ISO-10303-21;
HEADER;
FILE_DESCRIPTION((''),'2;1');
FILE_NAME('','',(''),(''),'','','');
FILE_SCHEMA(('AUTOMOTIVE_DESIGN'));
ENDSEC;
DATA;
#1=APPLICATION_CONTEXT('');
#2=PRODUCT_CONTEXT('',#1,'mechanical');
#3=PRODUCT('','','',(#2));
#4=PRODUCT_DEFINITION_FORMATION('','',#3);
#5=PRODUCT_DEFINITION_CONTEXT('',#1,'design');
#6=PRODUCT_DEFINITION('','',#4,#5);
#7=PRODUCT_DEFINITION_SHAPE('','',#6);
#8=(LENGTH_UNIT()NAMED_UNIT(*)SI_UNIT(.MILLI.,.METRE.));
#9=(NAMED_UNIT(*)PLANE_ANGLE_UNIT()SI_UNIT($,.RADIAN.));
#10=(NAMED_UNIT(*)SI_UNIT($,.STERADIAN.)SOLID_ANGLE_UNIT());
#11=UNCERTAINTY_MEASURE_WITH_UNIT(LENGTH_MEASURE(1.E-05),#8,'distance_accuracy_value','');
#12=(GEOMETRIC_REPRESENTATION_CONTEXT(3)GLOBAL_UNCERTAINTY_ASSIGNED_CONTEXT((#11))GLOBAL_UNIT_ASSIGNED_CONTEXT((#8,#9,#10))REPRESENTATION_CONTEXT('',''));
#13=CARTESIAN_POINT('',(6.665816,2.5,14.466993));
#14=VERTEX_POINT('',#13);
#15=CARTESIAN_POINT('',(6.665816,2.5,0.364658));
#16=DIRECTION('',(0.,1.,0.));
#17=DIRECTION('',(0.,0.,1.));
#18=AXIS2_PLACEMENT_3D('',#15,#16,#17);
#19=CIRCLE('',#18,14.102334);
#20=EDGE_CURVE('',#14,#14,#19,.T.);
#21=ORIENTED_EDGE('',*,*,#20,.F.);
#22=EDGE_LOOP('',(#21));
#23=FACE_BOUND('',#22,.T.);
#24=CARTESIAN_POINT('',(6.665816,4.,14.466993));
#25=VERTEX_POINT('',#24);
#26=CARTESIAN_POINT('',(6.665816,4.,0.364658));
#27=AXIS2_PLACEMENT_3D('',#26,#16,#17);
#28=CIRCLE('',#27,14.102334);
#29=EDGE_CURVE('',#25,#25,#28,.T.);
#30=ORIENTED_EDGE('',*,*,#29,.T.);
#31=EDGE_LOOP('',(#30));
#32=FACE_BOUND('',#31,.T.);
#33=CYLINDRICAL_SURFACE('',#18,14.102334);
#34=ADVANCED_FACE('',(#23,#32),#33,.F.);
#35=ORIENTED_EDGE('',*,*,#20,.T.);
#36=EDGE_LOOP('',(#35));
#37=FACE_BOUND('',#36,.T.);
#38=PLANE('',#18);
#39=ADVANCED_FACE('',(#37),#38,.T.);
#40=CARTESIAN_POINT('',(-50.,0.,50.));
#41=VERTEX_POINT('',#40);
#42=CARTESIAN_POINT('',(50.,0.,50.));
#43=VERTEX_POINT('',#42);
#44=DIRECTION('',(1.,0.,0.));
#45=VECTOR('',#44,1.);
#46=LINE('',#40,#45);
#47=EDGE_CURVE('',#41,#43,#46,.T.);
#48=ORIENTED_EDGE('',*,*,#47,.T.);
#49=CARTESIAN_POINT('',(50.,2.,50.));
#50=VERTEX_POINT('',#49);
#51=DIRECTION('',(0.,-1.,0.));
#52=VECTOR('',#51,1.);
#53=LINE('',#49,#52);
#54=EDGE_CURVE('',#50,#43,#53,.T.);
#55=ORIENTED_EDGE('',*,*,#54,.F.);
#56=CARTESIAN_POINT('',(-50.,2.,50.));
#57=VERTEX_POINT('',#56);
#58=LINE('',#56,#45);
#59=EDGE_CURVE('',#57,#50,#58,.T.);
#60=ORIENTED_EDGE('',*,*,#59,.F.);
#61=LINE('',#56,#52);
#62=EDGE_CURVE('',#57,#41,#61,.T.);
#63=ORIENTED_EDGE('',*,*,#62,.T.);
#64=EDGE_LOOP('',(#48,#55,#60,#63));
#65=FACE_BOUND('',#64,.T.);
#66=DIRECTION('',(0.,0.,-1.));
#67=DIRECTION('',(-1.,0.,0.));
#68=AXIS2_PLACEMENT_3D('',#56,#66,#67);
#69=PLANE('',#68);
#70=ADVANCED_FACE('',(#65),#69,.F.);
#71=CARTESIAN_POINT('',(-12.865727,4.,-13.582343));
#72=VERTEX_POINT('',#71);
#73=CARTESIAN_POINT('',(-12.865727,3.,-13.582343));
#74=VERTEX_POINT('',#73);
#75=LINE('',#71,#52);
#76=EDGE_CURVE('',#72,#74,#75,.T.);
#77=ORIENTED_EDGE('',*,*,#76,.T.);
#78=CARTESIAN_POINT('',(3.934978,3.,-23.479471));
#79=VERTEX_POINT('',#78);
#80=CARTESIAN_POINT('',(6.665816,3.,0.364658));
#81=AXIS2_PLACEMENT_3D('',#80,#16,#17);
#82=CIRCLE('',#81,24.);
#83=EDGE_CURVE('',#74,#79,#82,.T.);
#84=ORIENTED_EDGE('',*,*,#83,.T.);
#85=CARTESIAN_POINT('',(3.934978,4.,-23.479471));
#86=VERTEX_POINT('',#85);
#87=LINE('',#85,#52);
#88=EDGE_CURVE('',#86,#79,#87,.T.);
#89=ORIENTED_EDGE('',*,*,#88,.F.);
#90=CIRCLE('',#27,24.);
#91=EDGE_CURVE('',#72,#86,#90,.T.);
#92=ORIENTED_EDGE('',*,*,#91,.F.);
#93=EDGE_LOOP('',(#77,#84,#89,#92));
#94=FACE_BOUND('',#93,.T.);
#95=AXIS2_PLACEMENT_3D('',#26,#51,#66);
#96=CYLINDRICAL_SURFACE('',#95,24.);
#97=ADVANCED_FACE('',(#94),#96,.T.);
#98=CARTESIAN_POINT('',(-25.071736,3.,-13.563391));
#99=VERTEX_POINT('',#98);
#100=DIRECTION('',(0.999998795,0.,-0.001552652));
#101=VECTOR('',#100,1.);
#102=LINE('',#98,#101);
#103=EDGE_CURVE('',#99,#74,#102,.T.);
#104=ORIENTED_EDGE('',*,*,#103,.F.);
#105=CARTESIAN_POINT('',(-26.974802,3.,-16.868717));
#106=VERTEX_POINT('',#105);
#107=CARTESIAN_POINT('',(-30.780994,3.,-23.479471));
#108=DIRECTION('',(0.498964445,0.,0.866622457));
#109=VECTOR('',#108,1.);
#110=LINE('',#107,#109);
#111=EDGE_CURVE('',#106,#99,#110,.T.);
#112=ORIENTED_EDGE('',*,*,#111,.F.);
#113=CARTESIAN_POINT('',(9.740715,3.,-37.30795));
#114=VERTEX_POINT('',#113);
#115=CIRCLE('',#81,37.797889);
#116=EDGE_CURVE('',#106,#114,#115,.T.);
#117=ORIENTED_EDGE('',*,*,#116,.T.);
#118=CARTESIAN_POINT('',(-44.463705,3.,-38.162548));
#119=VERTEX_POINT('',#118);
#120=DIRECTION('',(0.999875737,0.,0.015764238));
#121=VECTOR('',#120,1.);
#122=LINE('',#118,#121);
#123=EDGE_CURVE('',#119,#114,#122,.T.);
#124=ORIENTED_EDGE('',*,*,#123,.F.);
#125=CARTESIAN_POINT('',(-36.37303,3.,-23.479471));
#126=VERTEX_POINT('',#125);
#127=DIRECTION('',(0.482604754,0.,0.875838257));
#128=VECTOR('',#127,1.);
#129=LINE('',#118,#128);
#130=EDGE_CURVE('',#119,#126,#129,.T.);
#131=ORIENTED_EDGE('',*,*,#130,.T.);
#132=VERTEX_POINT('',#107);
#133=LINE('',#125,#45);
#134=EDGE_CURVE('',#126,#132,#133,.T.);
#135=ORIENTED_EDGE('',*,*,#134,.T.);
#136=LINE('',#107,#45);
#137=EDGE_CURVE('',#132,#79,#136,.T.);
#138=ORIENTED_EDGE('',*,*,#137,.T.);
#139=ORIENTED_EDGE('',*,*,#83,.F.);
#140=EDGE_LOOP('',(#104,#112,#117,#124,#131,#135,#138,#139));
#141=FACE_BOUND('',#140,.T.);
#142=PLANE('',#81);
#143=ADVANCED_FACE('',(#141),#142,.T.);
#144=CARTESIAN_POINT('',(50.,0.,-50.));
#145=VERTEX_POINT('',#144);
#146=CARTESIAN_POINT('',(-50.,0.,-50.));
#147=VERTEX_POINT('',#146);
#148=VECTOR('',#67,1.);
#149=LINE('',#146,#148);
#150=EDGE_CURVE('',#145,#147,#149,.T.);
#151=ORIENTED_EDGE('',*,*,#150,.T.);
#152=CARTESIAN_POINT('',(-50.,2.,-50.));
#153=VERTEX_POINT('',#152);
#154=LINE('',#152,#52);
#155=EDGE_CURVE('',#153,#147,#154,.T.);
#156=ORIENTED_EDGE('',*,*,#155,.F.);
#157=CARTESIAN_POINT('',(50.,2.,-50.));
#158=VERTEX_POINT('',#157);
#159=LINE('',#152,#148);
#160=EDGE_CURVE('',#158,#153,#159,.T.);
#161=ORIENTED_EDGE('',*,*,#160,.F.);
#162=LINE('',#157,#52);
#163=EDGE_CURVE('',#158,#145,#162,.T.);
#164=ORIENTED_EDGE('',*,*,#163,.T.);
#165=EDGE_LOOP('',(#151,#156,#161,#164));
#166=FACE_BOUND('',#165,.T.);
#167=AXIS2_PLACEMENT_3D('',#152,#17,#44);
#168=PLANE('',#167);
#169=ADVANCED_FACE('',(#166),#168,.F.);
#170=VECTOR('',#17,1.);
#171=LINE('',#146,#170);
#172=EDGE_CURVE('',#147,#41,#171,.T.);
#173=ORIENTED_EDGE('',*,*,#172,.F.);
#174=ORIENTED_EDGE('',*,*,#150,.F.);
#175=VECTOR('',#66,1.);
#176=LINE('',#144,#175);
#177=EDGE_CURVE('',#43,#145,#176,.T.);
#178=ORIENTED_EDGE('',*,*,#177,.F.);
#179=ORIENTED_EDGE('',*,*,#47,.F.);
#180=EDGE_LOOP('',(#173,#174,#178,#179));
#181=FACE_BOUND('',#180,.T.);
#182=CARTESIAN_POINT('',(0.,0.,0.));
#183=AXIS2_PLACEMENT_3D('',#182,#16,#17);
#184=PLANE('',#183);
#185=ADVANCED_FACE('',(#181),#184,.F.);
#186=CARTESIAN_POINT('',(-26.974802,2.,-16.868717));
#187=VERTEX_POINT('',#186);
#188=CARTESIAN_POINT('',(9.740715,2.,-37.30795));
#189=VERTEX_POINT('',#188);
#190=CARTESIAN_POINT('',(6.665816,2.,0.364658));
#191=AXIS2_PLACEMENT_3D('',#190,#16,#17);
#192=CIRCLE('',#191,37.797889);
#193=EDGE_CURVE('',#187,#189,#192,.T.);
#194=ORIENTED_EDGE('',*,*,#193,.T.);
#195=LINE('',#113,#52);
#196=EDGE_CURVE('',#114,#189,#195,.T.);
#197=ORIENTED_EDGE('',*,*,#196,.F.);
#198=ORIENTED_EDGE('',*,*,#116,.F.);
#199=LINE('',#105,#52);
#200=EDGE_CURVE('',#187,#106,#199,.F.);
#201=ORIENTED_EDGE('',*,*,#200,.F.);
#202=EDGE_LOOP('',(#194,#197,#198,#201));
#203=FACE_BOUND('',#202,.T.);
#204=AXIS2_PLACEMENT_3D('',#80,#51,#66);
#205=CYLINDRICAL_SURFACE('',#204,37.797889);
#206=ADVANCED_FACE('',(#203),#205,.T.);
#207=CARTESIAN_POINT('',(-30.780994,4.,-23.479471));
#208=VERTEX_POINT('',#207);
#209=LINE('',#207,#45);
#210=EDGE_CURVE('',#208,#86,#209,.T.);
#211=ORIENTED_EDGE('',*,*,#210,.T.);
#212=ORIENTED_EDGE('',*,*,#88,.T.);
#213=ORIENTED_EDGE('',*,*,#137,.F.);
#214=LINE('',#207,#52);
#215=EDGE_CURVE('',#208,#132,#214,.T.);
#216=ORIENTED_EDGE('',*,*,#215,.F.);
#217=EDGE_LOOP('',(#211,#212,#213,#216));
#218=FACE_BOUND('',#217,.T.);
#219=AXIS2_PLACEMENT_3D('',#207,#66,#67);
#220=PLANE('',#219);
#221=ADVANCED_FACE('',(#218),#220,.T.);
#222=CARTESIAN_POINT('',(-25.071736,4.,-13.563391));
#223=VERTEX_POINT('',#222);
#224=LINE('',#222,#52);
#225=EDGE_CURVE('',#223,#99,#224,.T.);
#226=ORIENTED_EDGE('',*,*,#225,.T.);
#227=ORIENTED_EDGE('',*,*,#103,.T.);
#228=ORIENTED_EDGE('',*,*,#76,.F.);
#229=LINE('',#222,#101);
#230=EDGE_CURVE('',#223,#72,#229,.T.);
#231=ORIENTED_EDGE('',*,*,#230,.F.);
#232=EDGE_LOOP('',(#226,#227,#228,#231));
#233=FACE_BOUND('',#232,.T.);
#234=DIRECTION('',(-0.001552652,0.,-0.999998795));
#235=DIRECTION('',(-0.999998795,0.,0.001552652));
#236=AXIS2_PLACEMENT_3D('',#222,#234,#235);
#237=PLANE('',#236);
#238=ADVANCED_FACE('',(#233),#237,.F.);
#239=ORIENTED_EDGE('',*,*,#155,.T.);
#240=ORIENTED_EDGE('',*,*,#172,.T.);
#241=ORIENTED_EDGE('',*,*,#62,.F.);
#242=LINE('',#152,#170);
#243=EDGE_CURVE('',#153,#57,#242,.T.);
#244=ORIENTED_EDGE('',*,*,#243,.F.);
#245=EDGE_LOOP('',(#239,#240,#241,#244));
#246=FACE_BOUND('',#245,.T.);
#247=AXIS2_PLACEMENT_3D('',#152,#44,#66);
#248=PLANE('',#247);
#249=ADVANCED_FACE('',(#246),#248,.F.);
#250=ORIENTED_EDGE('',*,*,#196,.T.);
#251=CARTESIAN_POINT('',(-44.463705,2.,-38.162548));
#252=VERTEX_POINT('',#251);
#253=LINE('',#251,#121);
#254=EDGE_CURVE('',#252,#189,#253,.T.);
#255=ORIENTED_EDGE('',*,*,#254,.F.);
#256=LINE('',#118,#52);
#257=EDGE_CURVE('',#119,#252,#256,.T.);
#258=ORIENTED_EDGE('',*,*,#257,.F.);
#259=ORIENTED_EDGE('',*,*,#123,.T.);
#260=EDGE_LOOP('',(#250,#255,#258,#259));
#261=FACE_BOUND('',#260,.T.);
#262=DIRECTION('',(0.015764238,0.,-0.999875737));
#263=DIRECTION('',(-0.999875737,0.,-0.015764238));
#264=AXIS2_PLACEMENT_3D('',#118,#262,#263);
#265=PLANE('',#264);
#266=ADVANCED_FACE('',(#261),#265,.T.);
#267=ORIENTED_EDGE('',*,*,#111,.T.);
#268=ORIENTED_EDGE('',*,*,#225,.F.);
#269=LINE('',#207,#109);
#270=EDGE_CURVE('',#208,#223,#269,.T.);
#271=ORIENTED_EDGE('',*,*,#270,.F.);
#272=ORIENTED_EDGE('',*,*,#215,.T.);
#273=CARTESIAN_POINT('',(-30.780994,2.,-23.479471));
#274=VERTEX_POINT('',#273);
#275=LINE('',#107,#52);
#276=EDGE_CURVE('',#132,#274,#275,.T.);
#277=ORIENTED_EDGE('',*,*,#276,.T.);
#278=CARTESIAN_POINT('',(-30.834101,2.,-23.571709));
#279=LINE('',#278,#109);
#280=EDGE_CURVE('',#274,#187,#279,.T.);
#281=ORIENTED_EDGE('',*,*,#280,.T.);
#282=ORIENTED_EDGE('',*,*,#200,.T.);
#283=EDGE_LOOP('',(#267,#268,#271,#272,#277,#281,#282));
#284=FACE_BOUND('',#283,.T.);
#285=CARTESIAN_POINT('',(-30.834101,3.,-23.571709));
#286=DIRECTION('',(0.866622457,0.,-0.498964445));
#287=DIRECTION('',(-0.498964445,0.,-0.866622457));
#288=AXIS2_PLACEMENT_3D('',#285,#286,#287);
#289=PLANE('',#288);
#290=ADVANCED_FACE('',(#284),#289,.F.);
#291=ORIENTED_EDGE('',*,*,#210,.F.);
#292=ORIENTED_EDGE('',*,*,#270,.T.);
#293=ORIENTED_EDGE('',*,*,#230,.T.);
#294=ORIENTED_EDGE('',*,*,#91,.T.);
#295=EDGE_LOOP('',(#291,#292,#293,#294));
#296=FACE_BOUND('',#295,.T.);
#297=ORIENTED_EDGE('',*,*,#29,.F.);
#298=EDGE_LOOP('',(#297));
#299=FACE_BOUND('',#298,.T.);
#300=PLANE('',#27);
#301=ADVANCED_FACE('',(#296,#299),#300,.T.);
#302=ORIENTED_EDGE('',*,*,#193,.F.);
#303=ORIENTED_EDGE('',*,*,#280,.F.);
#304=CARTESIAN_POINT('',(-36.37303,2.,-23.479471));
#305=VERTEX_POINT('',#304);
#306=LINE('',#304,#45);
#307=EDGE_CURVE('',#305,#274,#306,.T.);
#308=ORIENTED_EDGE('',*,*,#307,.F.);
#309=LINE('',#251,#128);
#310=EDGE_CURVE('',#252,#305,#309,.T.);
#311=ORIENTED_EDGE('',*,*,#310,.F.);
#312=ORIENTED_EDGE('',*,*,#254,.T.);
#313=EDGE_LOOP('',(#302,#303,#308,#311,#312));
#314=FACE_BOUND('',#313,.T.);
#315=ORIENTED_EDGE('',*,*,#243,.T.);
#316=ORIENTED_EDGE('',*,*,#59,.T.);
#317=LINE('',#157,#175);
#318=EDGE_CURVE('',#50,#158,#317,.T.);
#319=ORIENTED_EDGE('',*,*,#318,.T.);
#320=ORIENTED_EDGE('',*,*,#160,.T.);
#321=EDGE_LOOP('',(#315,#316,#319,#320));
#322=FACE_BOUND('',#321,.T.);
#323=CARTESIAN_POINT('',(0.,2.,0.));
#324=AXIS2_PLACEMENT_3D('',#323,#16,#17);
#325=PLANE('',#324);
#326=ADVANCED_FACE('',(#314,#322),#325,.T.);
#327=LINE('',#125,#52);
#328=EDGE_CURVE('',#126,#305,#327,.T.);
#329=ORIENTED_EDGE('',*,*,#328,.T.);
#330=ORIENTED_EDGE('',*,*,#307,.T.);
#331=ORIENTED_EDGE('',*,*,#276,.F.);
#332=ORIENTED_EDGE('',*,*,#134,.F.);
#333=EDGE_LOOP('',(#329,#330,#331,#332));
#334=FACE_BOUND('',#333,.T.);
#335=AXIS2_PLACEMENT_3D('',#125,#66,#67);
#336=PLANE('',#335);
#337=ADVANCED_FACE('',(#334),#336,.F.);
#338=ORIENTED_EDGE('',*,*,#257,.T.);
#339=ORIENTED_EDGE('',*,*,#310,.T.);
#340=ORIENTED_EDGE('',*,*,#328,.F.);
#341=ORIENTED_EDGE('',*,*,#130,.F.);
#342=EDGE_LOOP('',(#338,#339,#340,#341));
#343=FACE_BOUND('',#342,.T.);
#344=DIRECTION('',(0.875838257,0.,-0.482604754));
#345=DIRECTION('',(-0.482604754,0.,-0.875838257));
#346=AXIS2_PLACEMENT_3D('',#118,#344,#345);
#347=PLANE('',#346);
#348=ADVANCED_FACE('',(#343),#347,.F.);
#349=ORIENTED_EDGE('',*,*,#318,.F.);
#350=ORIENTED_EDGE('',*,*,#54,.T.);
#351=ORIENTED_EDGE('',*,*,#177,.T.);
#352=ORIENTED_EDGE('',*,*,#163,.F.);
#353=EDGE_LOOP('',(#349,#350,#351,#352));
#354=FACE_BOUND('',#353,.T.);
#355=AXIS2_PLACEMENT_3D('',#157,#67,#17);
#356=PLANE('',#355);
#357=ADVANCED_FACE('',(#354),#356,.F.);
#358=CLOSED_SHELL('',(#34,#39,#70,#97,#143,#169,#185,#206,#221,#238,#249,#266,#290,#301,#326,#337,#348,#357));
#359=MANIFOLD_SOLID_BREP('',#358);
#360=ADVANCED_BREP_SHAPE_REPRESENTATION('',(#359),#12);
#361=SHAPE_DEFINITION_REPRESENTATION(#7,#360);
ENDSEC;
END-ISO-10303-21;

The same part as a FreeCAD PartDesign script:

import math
import FreeCAD as App
import Part
import Sketcher

V = App.Vector
Q = App.Units.Quantity

doc = App.newDocument("Part")
body = doc.addObject("PartDesign::Body", "Body")

sketch1 = body.newObject("Sketcher::SketchObject", "Sketch")
sketch1.AttachmentSupport = (doc.getObject("XZ_Plane"), [""])
sketch1.MapMode = "FlatFace"
sketch1.addGeometry([
    Part.LineSegment(V(-50, -50, 0), V(-50, 50, 0)),
    Part.LineSegment(V(-50, 50, 0), V(50, 50, 0)),
    Part.LineSegment(V(50, 50, 0), V(50, -50, 0)),
    Part.LineSegment(V(50, -50, 0), V(-50, -50, 0)),
], False)
sketch1.addConstraint([
    Sketcher.Constraint("Coincident", 0, 2, 1, 1),
    Sketcher.Constraint("Coincident", 1, 2, 2, 1),
    Sketcher.Constraint("Coincident", 2, 2, 3, 1),
    Sketcher.Constraint("Coincident", 3, 2, 0, 1),
    Sketcher.Constraint("Vertical", 0),
    Sketcher.Constraint("Horizontal", 1),
    Sketcher.Constraint("Vertical", 2),
    Sketcher.Constraint("Horizontal", 3),
    Sketcher.Constraint("Symmetric", 0, 2, 2, 2, -1, 1),
    Sketcher.Constraint("Equal", 3, 0),
    Sketcher.Constraint("DistanceX", 1, 1, 1, 2, Q("100 mm")),
])
pad1 = body.newObject("PartDesign::Pad", "Pad")
pad1.Profile = sketch1
pad1.Length = 2
pad1.Reversed = True

sketch2 = body.newObject("Sketcher::SketchObject", "Sketch001")
sketch2.AttachmentSupport = (doc.getObject("XZ_Plane"), [""])
sketch2.MapMode = "FlatFace"
sketch2.AttachmentOffset = App.Placement(V(0, 0, -2), App.Rotation())
sketch2.addGeometry([
    Part.LineSegment(V(9.740715, -37.30795, 0), V(-44.463705, -38.162548, 0)),
    Part.LineSegment(V(-44.463705, -38.162548, 0), V(-36.37303, -23.479471, 0)),
    Part.LineSegment(V(-36.37303, -23.479471, 0), V(-30.780994, -23.479471, 0)),
    Part.LineSegment(V(-30.780994, -23.479471, 0), V(-26.974802, -16.868717, 0)),
    Part.ArcOfCircle(Part.Circle(V(6.665816, 0.364658, 0), V(0, 0, 1), 37.797889), math.radians(-85.33377), math.radians(207.125102)),
], False)
sketch2.addConstraint([
    Sketcher.Constraint("Coincident", 0, 2, 1, 1),
    Sketcher.Constraint("Coincident", 1, 2, 2, 1),
    Sketcher.Constraint("Coincident", 2, 2, 3, 1),
    Sketcher.Constraint("Coincident", 3, 2, 4, 2),
    Sketcher.Constraint("Coincident", 4, 1, 0, 1),
    Sketcher.Constraint("Horizontal", 2),
    Sketcher.Constraint("Radius", 4, Q("37.797889 mm")),
    Sketcher.Constraint("DistanceX", 4, 3, 4, 1, Q("3.074899 mm")),
    Sketcher.Constraint("DistanceX", 2, 1, 2, 2, Q("5.592036 mm")),
    Sketcher.Constraint("DistanceY", -1, 1, 4, 3, Q("0.364658 mm")),
    Sketcher.Constraint("DistanceX", 1, 2, -1, 1, Q("36.37303 mm")),
    Sketcher.Constraint("DistanceY", 1, 2, -1, 1, Q("23.479471 mm")),
    Sketcher.Constraint("DistanceX", 0, 2, 4, 3, Q("51.129521 mm")),
    Sketcher.Constraint("DistanceX", 0, 2, 2, 2, Q("13.682711 mm")),
    Sketcher.Constraint("DistanceX", 2, 2, 3, 2, Q("3.806192 mm")),
    Sketcher.Constraint("DistanceY", 0, 2, 3, 2, Q("21.29383 mm")),
])
pad2 = body.newObject("PartDesign::Pad", "Pad001")
pad2.Profile = sketch2
pad2.Length = 1
pad2.Reversed = True

sketch3 = body.newObject("Sketcher::SketchObject", "Sketch002")
sketch3.AttachmentSupport = (doc.getObject("XZ_Plane"), [""])
sketch3.MapMode = "FlatFace"
sketch3.AttachmentOffset = App.Placement(V(0, 0, -3), App.Rotation())
sketch3.addGeometry([
    Part.LineSegment(V(-30.780994, -23.479471, 0), V(-25.071736, -13.563391, 0)),
    Part.LineSegment(V(-25.071736, -13.563391, 0), V(-12.865727, -13.582343, 0)),
    Part.ArcOfCircle(Part.Circle(V(6.665816, 0.364658, 0), V(0, 0, 1), 24), math.radians(-96.533545), math.radians(215.529711)),
    Part.LineSegment(V(3.934978, -23.479471, 0), V(-30.780994, -23.479471, 0)),
], False)
sketch3.addConstraint([
    Sketcher.Constraint("Coincident", 0, 2, 1, 1),
    Sketcher.Constraint("Coincident", 1, 2, 2, 2),
    Sketcher.Constraint("Coincident", 2, 1, 3, 1),
    Sketcher.Constraint("Coincident", 3, 2, 0, 1),
    Sketcher.Constraint("Horizontal", 3),
    Sketcher.Constraint("Radius", 2, Q("24 mm")),
    Sketcher.Constraint("DistanceY", 1, 2, 2, 3, Q("13.947001 mm")),
    Sketcher.Constraint("DistanceX", 3, 2, 3, 1, Q("34.715972 mm")),
    Sketcher.Constraint("DistanceY", -1, 1, 2, 3, Q("0.364658 mm")),
    Sketcher.Constraint("DistanceY", 0, 2, -1, 1, Q("13.563391 mm")),
    Sketcher.Constraint("DistanceX", -1, 1, 2, 1, Q("3.934978 mm")),
    Sketcher.Constraint("DistanceY", 2, 1, -1, 1, Q("23.479471 mm")),
    Sketcher.Constraint("DistanceX", 0, 2, 2, 3, Q("31.737551 mm")),
])
pad3 = body.newObject("PartDesign::Pad", "Pad002")
pad3.Profile = sketch3
pad3.Length = 1
pad3.Reversed = True

sketch4 = body.newObject("Sketcher::SketchObject", "Sketch003")
sketch4.AttachmentSupport = (doc.getObject("XZ_Plane"), [""])
sketch4.MapMode = "FlatFace"
sketch4.AttachmentOffset = App.Placement(V(0, 0, -4), App.Rotation())
sketch4.addGeometry(Part.Circle(V(6.665816, 0.364658, 0), V(0, 0, 1), 14.102334), False)
sketch4.addConstraint([
    Sketcher.Constraint("Diameter", 0, Q("28.204669 mm")),
    Sketcher.Constraint("DistanceY", -1, 1, 0, 3, Q("0.364658 mm")),
    Sketcher.Constraint("DistanceX", -1, 1, 0, 3, Q("6.665816 mm")),
])
pocket1 = body.newObject("PartDesign::Pocket", "Pocket")
pocket1.Profile = sketch4
pocket1.Length = 1.5
pocket1.Reversed = True

doc.recompute()
